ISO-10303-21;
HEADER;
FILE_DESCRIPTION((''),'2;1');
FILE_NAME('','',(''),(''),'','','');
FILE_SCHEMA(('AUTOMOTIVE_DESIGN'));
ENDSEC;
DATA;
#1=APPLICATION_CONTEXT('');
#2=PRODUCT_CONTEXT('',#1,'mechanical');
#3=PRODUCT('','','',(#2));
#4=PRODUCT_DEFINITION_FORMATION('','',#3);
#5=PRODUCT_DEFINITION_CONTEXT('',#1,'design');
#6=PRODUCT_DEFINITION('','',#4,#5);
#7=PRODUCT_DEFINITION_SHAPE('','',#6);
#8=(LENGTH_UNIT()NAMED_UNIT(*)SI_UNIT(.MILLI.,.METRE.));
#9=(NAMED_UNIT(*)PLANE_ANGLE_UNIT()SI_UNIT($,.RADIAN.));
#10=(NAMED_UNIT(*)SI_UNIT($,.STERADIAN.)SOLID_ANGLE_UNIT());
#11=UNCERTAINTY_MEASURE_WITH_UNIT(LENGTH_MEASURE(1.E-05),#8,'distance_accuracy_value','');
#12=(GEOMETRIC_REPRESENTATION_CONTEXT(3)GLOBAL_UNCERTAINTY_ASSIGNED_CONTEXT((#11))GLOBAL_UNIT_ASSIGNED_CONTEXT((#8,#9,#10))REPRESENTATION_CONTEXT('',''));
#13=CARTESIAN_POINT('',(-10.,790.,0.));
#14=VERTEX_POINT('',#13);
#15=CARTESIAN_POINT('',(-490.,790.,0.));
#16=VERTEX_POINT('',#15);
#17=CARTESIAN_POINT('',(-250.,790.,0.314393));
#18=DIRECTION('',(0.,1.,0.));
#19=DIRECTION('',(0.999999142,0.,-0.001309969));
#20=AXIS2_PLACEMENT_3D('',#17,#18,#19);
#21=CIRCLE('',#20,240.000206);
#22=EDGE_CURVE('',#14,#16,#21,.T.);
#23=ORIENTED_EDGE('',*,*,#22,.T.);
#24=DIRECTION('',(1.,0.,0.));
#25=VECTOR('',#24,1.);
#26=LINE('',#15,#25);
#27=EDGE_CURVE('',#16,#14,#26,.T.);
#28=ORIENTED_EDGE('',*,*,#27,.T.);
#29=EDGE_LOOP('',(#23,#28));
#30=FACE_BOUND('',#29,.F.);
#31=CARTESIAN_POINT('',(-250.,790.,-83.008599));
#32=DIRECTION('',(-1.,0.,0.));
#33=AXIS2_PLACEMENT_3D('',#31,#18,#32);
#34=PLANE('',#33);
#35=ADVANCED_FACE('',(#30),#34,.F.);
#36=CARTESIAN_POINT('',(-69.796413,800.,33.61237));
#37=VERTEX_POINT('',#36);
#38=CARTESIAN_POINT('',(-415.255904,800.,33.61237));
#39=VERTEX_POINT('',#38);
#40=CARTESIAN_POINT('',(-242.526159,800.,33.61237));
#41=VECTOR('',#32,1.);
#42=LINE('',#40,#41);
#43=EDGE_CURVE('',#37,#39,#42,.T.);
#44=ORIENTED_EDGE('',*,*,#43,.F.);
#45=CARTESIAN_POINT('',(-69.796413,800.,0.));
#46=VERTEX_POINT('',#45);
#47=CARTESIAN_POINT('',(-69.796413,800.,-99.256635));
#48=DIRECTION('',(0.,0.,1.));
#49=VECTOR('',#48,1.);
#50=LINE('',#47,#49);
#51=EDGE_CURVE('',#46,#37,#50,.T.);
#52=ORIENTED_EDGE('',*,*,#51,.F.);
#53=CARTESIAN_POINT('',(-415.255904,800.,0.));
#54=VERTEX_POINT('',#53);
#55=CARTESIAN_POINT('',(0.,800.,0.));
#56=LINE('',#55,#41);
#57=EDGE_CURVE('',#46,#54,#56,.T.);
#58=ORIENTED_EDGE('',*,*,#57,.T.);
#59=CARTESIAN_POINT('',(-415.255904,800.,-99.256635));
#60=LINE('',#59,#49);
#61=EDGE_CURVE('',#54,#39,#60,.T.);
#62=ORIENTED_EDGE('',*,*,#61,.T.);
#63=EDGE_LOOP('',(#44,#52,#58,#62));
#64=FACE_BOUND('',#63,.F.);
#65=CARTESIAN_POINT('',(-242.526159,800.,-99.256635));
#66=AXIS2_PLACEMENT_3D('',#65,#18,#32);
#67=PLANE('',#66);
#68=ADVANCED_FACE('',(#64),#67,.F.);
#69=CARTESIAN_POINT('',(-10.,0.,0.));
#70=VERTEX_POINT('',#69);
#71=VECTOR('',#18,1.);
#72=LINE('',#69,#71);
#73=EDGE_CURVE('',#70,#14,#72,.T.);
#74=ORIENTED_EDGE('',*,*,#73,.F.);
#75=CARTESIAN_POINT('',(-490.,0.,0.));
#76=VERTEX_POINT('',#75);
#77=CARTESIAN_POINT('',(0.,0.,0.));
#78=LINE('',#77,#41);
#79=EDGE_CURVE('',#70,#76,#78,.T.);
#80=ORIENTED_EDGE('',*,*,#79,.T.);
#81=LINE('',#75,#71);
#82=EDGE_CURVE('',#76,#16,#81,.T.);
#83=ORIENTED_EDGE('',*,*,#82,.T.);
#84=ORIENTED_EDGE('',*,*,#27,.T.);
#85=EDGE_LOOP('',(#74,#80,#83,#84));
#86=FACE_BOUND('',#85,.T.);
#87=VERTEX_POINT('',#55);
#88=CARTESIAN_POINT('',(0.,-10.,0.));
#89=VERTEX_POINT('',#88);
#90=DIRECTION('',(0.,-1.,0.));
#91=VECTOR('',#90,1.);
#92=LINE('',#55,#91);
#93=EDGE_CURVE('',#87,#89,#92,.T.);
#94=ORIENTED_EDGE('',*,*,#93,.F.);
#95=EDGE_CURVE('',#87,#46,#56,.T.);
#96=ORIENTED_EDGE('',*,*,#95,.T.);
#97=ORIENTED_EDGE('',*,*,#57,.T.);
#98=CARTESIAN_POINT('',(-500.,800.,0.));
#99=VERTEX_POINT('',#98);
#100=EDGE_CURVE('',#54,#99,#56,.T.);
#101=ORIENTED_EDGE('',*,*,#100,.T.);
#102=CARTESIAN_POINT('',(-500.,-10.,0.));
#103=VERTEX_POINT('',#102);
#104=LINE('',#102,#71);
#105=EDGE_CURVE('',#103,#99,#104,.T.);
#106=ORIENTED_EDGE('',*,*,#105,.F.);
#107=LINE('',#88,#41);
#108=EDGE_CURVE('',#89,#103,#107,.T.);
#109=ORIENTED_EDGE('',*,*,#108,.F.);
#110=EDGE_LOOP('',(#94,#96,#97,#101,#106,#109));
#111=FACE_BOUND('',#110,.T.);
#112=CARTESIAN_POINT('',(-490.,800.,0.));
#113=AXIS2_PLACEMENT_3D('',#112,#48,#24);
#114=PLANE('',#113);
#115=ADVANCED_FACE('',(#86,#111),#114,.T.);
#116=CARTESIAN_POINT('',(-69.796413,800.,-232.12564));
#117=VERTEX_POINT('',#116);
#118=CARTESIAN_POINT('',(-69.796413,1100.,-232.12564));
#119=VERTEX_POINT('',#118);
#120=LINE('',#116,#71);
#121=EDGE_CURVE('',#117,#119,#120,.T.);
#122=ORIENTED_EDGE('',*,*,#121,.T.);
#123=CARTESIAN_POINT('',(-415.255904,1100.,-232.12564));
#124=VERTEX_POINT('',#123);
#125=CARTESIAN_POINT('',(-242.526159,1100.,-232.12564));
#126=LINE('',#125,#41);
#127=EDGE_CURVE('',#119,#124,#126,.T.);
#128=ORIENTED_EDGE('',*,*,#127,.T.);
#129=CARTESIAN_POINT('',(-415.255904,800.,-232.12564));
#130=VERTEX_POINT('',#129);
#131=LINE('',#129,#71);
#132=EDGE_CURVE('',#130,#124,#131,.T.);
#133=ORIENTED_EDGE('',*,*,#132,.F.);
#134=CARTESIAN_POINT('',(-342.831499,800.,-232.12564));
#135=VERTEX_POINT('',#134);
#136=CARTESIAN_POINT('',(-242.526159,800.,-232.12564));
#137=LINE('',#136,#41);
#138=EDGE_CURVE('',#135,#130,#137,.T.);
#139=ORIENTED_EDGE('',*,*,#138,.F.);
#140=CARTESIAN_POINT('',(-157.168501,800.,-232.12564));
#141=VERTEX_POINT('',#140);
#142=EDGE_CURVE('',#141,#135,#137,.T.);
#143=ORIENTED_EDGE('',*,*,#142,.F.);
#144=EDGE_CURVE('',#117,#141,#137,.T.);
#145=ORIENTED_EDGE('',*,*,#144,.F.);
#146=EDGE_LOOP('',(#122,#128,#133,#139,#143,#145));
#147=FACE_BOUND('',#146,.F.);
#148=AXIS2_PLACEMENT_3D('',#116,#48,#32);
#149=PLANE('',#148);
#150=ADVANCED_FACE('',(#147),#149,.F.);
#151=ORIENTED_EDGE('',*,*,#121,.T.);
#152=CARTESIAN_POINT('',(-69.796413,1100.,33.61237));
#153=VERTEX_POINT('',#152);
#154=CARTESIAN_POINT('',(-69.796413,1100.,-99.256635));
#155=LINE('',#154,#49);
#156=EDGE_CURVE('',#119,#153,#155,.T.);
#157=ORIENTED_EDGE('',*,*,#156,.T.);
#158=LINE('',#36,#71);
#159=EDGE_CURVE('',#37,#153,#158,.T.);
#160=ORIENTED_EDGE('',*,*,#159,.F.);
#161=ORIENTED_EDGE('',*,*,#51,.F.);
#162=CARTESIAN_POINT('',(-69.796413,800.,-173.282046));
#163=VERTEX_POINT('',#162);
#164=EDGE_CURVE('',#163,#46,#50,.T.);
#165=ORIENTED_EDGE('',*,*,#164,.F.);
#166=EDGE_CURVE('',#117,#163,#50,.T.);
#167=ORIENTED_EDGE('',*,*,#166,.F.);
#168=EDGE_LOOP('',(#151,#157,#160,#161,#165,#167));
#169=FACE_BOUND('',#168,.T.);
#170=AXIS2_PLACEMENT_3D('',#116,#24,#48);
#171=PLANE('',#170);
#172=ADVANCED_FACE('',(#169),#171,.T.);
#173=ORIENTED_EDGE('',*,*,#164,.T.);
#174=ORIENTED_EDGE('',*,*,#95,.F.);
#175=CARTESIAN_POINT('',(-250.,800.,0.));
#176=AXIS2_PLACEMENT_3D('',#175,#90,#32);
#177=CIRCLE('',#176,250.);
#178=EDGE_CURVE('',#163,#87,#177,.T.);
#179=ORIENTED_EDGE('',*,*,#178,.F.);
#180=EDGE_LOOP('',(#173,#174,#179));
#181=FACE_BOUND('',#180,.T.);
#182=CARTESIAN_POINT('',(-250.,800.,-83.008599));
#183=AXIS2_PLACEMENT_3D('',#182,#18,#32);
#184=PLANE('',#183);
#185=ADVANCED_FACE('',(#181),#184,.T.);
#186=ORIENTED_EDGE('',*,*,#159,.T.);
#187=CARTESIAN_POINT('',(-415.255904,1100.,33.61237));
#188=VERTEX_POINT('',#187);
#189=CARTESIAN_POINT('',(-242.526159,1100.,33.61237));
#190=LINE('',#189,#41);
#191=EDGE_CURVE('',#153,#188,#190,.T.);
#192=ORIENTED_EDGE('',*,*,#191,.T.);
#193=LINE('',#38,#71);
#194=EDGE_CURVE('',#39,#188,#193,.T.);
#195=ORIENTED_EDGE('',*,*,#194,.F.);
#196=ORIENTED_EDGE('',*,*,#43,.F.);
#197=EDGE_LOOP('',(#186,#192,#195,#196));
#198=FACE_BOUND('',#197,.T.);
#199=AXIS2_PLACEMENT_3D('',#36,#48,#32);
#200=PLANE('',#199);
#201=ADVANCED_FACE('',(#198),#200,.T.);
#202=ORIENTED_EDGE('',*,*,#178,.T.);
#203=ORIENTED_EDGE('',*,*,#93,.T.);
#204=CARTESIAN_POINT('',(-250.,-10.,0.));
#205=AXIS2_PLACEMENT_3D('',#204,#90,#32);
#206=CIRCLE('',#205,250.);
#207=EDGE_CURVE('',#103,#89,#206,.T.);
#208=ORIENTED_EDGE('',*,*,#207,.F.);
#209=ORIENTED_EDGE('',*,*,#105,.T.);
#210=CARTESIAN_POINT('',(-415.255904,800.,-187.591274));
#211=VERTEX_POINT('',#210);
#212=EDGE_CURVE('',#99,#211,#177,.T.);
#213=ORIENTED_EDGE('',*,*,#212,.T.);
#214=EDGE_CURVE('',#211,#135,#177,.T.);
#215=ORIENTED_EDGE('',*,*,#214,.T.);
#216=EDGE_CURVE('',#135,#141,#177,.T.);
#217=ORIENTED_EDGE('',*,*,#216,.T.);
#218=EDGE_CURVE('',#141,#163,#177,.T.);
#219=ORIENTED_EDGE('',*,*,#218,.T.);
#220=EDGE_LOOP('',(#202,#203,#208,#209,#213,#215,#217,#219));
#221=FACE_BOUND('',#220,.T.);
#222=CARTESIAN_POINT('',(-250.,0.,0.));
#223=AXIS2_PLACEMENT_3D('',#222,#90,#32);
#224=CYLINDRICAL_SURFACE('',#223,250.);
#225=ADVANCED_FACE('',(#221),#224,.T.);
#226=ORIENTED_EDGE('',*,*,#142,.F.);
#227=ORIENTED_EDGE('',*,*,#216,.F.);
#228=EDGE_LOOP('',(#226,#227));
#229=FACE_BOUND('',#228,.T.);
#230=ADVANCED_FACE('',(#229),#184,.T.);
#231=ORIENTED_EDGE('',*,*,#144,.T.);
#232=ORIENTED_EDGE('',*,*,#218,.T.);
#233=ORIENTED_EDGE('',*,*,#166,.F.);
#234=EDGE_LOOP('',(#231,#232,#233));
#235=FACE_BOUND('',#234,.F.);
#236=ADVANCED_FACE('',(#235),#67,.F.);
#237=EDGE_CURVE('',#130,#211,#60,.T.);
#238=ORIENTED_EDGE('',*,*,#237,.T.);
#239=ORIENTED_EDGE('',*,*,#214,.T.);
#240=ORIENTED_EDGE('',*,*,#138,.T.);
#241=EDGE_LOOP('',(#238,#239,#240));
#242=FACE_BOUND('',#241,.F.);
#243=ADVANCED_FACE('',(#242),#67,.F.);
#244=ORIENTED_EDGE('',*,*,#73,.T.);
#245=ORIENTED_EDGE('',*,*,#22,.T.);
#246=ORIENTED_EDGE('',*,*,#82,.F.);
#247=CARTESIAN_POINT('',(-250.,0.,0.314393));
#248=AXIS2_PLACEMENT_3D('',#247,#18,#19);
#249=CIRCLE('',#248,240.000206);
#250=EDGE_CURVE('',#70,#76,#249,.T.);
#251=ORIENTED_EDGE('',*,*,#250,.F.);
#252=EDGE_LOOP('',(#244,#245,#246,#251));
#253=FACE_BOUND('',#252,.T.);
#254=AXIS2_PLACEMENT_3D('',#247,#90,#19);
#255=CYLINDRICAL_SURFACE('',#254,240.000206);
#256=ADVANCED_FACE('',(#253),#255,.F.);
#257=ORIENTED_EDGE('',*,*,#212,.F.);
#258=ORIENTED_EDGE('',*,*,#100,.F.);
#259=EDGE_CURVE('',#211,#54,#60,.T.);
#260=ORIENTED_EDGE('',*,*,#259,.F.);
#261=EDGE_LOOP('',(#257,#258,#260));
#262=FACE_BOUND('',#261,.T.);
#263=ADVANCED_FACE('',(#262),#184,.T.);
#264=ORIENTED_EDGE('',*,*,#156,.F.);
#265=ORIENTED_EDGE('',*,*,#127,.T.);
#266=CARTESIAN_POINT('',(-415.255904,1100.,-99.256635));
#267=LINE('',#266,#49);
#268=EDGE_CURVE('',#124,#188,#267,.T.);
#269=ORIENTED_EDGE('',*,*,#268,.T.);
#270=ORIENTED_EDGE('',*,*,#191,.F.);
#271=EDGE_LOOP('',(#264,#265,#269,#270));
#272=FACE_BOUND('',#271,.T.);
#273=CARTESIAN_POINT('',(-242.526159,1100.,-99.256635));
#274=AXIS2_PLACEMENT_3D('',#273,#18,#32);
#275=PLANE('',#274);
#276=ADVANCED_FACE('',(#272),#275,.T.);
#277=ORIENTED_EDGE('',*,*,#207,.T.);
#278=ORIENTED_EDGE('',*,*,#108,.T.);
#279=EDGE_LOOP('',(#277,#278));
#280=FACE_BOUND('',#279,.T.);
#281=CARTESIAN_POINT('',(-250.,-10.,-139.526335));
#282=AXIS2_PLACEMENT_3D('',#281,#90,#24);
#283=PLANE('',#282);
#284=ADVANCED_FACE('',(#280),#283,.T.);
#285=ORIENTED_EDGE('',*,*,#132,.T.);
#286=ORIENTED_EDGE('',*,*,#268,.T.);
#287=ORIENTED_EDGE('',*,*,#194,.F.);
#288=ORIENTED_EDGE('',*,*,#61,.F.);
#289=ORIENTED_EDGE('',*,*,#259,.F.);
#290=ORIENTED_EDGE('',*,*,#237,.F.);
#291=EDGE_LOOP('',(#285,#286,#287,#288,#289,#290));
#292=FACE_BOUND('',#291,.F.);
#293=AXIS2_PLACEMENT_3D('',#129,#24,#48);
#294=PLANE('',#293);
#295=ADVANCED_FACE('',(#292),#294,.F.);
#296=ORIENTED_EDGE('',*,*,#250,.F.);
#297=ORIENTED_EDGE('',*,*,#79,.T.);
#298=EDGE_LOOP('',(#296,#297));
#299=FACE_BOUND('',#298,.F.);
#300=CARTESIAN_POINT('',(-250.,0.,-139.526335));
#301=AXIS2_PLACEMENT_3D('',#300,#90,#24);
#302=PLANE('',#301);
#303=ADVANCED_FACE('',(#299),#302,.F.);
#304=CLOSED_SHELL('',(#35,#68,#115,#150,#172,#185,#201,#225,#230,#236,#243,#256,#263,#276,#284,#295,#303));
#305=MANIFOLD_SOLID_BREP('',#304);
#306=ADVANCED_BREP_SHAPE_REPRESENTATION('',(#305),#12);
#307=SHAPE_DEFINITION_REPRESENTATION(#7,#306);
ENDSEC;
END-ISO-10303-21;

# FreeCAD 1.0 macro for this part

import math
import FreeCAD as App
import Part
import Sketcher
Q = App.Units.Quantity

doc = App.newDocument("Part")
body = doc.addObject("PartDesign::Body", "Body")

sketch1 = doc.addObject("Sketcher::SketchObject", "Sketch")
body.addObject(sketch1)
sketch1.AttachmentSupport = (doc.XZ_Plane, [""])
sketch1.MapMode = "FlatFace"
sketch1.addGeometry([
    Part.ArcOfCircle(Part.Circle(App.Vector(-250, 0, 0), App.Vector(0, 0, 1), 250), math.radians(180), math.radians(360)),
    Part.LineSegment(App.Vector(0, 0, 0), App.Vector(-500, 0, 0)),
], False)
sketch1.addConstraint([
    Sketcher.Constraint("Coincident", 0, 1, 1, 2),
    Sketcher.Constraint("Coincident", 1, 1, 0, 2),
    Sketcher.Constraint("Horizontal", 1),
    Sketcher.Constraint("Coincident", 1, 1, -1, 1),
    Sketcher.Constraint("PointOnObject", 0, 3, -1),
    Sketcher.Constraint("Radius", 0, Q("250 mm")),
])
pad1 = doc.addObject("PartDesign::Pad", "Pad")
body.addObject(pad1)
pad1.Profile = sketch1
pad1.Length = 10

sketch2 = doc.addObject("Sketcher::SketchObject", "Sketch001")
body.addObject(sketch2)
sketch2.AttachmentSupport = (doc.XZ_Plane, [""])
sketch2.MapMode = "FlatFace"
sketch2.addGeometry([
    Part.ArcOfCircle(Part.Circle(App.Vector(-250, 0, 0), App.Vector(0, 0, 1), 250), math.radians(180), math.radians(360)),
    Part.LineSegment(App.Vector(0, 0, 0), App.Vector(-10, 0, 0)),
    Part.ArcOfCircle(Part.Circle(App.Vector(-250, 0.314393, 0), App.Vector(0, 0, 1), 240.000206), math.radians(-179.924944), math.radians(-0.075056)),
    Part.LineSegment(App.Vector(-490, 0, 0), App.Vector(-500, 0, 0)),
], False)
sketch2.addConstraint([
    Sketcher.Constraint("Coincident", 0, 2, 1, 1),
    Sketcher.Constraint("Coincident", 1, 2, 2, 2),
    Sketcher.Constraint("Coincident", 2, 1, 3, 1),
    Sketcher.Constraint("Coincident", 3, 2, 0, 1),
    Sketcher.Constraint("Horizontal", 1),
    Sketcher.Constraint("Horizontal", 3),
    Sketcher.Constraint("Coincident", 0, 2, -1, 1),
    Sketcher.Constraint("PointOnObject", 0, 3, -1),
    Sketcher.Constraint("PointOnObject", 2, 1, -1),
    Sketcher.Constraint("Vertical", 0, 3, 2, 3),
    Sketcher.Constraint("Radius", 0, Q("250 mm")),
    Sketcher.Constraint("DistanceX", 1, 2, 1, 1, Q("10 mm")),
    Sketcher.Constraint("DistanceY", -1, 1, 2, 3, Q("0.314393 mm")),
])
pad2 = doc.addObject("PartDesign::Pad", "Pad001")
body.addObject(pad2)
pad2.Profile = sketch2
pad2.Length = 800
pad2.Reversed = True

sketch3 = doc.addObject("Sketcher::SketchObject", "Sketch002")
body.addObject(sketch3)
sketch3.AttachmentSupport = (doc.XZ_Plane, [""])
sketch3.MapMode = "FlatFace"
sketch3.AttachmentOffset = App.Placement(App.Vector(0, 0, -800), App.Rotation())
sketch3.addGeometry([
    Part.LineSegment(App.Vector(-490, 0, 0), App.Vector(-10, 0, 0)),
    Part.ArcOfCircle(Part.Circle(App.Vector(-250, 0.314393, 0), App.Vector(0, 0, 1), 240.000206), math.radians(-179.924944), math.radians(-0.075056)),
], False)
sketch3.addConstraint([
    Sketcher.Constraint("Coincident", 0, 1, 1, 1),
    Sketcher.Constraint("Coincident", 1, 2, 0, 2),
    Sketcher.Constraint("Horizontal", 0),
    Sketcher.Constraint("PointOnObject", 0, 1, -1),
    Sketcher.Constraint("DistanceX", 0, 1, 0, 2, Q("480 mm")),
    Sketcher.Constraint("DistanceX", 1, 3, -1, 1, Q("250 mm")),
    Sketcher.Constraint("DistanceY", -1, 1, 1, 3, Q("0.314393 mm")),
])
pad3 = doc.addObject("PartDesign::Pad", "Pad002")
body.addObject(pad3)
pad3.Profile = sketch3
pad3.Length = 10

sketch4 = doc.addObject("Sketcher::SketchObject", "Sketch003")
body.addObject(sketch4)
sketch4.AttachmentSupport = (doc.XZ_Plane, [""])
sketch4.MapMode = "FlatFace"
sketch4.AttachmentOffset = App.Placement(App.Vector(0, 0, -800), App.Rotation())
sketch4.addGeometry([
    Part.LineSegment(App.Vector(-69.796413, 33.61237, 0), App.Vector(-69.796413, -232.12564, 0)),
    Part.LineSegment(App.Vector(-69.796413, -232.12564, 0), App.Vector(-415.255904, -232.12564, 0)),
    Part.LineSegment(App.Vector(-415.255904, -232.12564, 0), App.Vector(-415.255904, 33.61237, 0)),
    Part.LineSegment(App.Vector(-415.255904, 33.61237, 0), App.Vector(-69.796413, 33.61237, 0)),
], False)
sketch4.addConstraint([
    Sketcher.Constraint("Coincident", 0, 2, 1, 1),
    Sketcher.Constraint("Coincident", 1, 2, 2, 1),
    Sketcher.Constraint("Coincident", 2, 2, 3, 1),
    Sketcher.Constraint("Coincident", 3, 2, 0, 1),
    Sketcher.Constraint("Vertical", 0),
    Sketcher.Constraint("Horizontal", 1),
    Sketcher.Constraint("Vertical", 2),
    Sketcher.Constraint("Horizontal", 3),
    Sketcher.Constraint("DistanceX", 1, 2, 1, 1, Q("345.459491 mm")),
    Sketcher.Constraint("DistanceY", 0, 2, 0, 1, Q("265.73801 mm")),
    Sketcher.Constraint("DistanceY", 0, 2, -1, 1, Q("232.12564 mm")),
    Sketcher.Constraint("DistanceX", 0, 2, -1, 1, Q("69.796413 mm")),
])
pad4 = doc.addObject("PartDesign::Pad", "Pad003")
body.addObject(pad4)
pad4.Profile = sketch4
pad4.Length = 300
pad4.Reversed = True

doc.recompute()
